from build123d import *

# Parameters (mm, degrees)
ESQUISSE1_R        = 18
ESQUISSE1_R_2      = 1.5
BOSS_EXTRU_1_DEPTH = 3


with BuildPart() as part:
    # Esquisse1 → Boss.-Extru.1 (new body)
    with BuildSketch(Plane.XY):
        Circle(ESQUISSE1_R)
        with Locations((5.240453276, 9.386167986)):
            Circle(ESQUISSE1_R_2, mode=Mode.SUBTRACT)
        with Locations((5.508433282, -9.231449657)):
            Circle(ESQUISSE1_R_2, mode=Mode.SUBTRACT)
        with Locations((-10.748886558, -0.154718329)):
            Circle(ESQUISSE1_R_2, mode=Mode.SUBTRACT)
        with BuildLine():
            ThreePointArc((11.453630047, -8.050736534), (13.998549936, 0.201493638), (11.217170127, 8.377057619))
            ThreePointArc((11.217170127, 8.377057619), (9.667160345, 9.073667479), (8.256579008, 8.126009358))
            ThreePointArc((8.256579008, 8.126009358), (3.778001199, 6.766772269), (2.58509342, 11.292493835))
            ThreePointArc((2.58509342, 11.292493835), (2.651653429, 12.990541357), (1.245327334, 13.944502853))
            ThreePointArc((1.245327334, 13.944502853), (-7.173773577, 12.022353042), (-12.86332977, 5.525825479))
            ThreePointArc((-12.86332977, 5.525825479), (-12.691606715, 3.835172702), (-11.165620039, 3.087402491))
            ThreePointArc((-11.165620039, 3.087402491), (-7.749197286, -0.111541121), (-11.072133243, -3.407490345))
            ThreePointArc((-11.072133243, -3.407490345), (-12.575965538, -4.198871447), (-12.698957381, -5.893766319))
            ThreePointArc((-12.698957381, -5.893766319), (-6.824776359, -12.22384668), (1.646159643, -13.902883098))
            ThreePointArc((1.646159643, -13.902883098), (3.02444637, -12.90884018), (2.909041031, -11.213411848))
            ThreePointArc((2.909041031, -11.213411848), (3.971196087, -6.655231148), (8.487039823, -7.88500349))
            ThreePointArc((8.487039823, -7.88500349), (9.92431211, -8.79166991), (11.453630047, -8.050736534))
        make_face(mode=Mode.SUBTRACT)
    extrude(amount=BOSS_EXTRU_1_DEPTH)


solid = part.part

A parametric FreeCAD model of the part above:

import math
import FreeCAD as App
import Part
import Sketcher
from FreeCAD import Vector
Q = App.Units.Quantity

doc = App.newDocument("Part")
body = doc.addObject("PartDesign::Body", "Body")

# Sketch on XY plane
sketch1 = body.newObject("Sketcher::SketchObject", "Sketch")
sketch1.AttachmentSupport = (doc.getObject("XY_Plane"), [""])
sketch1.MapMode = "FlatFace"
sketch1.addGeometry(Part.Circle(Vector(0, 0, 0), Vector(0, 0, 1), 18), False)
sketch1.addGeometry(Part.Circle(Vector(-10.7, -0.2, 0), Vector(0, 0, 1), 1.5), False)
sketch1.addGeometry(Part.Circle(Vector(5.5, -9.2, 0), Vector(0, 0, 1), 1.5), False)
sketch1.addGeometry(Part.ArcOfCircle(Part.Circle(Vector(0, 0, 0), Vector(0, 0, 1), 14), math.radians(-35), math.radians(37)), False)
sketch1.addGeometry(Part.ArcOfCircle(Part.Circle(Vector(10, -7, 0), Vector(0, 0, 1), 1.7), math.radians(-151), math.radians(-35)), False)
sketch1.addGeometry(Part.ArcOfCircle(Part.Circle(Vector(5.6, -9.4, 0), Vector(0, 0, 1), 3.2), math.radians(29), math.radians(213)), False)
sketch1.addGeometry(Part.ArcOfCircle(Part.Circle(Vector(1.4, -12.2, 0), Vector(0, 0, 1), 1.8), math.radians(-83), math.radians(33)), False)
sketch1.addGeometry(Part.ArcOfCircle(Part.Circle(Vector(0, 0, 0), Vector(0, 0, 1), 14), math.radians(-155), math.radians(-83)), False)
sketch1.addGeometry(Part.ArcOfCircle(Part.Circle(Vector(-11.1, -5.2, 0), Vector(0, 0, 1), 1.7), math.radians(89), math.radians(205)), False)
sketch1.addGeometry(Part.ArcOfCircle(Part.Circle(Vector(-11, -0.2, 0), Vector(0, 0, 1), 3.2), math.radians(-91), math.radians(93)), False)
sketch1.addGeometry(Part.ArcOfCircle(Part.Circle(Vector(-11.3, 4.8, 0), Vector(0, 0, 1), 1.8), math.radians(157), math.radians(273)), False)
sketch1.addGeometry(Part.ArcOfCircle(Part.Circle(Vector(0, 0, 0), Vector(0, 0, 1), 14), math.radians(85), math.radians(157)), False)
sketch1.addGeometry(Part.ArcOfCircle(Part.Circle(Vector(1.1, 12.2, 0), Vector(0, 0, 1), 1.7), math.radians(-31), math.radians(85)), False)
sketch1.addGeometry(Part.ArcOfCircle(Part.Circle(Vector(5.4, 9.6, 0), Vector(0, 0, 1), 3.2), math.radians(149), math.radians(333)), False)
sketch1.addGeometry(Part.ArcOfCircle(Part.Circle(Vector(9.8, 7.3, 0), Vector(0, 0, 1), 1.8), math.radians(37), math.radians(153)), False)
sketch1.addGeometry(Part.Circle(Vector(5.2, 9.4, 0), Vector(0, 0, 1), 1.5), False)
sketch1.addConstraint(Sketcher.Constraint("Tangent", 3, 1, 4, 2))
sketch1.addConstraint(Sketcher.Constraint("Tangent", 4, 1, 5, 1))
sketch1.addConstraint(Sketcher.Constraint("Tangent", 5, 2, 6, 2))
sketch1.addConstraint(Sketcher.Constraint("Tangent", 6, 1, 7, 2))
sketch1.addConstraint(Sketcher.Constraint("Tangent", 7, 1, 8, 2))
sketch1.addConstraint(Sketcher.Constraint("Tangent", 8, 1, 9, 1))
sketch1.addConstraint(Sketcher.Constraint("Tangent", 9, 2, 10, 2))
sketch1.addConstraint(Sketcher.Constraint("Tangent", 10, 1, 11, 2))
sketch1.addConstraint(Sketcher.Constraint("Tangent", 11, 1, 12, 2))
sketch1.addConstraint(Sketcher.Constraint("Tangent", 12, 1, 13, 1))
sketch1.addConstraint(Sketcher.Constraint("Tangent", 13, 2, 14, 2))
sketch1.addConstraint(Sketcher.Constraint("Tangent", 14, 1, 3, 2))
sketch1.addConstraint(Sketcher.Constraint("Coincident", 0, 3, -1, 1))
sketch1.addConstraint(Sketcher.Constraint("Coincident", 3, 3, -1, 1))
sketch1.addConstraint(Sketcher.Constraint("Coincident", 7, 3, -1, 1))
sketch1.addConstraint(Sketcher.Constraint("Coincident", 11, 3, -1, 1))
sketch1.addConstraint(Sketcher.Constraint("Equal", 1, 2))
sketch1.addConstraint(Sketcher.Constraint("Equal", 4, 6))
sketch1.addConstraint(Sketcher.Constraint("Equal", 3, 7))
sketch1.addConstraint(Sketcher.Constraint("Equal", 6, 8))
sketch1.addConstraint(Sketcher.Constraint("Equal", 5, 9))
sketch1.addConstraint(Sketcher.Constraint("Equal", 8, 10))
sketch1.addConstraint(Sketcher.Constraint("Equal", 7, 11))
sketch1.addConstraint(Sketcher.Constraint("Equal", 10, 12))
sketch1.addConstraint(Sketcher.Constraint("Equal", 9, 13))
sketch1.addConstraint(Sketcher.Constraint("Equal", 12, 14))
sketch1.addConstraint(Sketcher.Constraint("Equal", 2, 15))
sketch1.addConstraint(Sketcher.Constraint("Diameter", 0, Q("36 mm")))
sketch1.addConstraint(Sketcher.Constraint("Diameter", 1, Q("3 mm")))
sketch1.addConstraint(Sketcher.Constraint("Radius", 3, Q("14 mm")))
sketch1.addConstraint(Sketcher.Constraint("Radius", 4, Q("1.75 mm")))
sketch1.addConstraint(Sketcher.Constraint("Radius", 5, Q("3.25 mm")))
sketch1.addConstraint(Sketcher.Constraint("DistanceX", 5, 2, 4, 1, Q("5.577999 mm")))
sketch1.addConstraint(Sketcher.Constraint("DistanceX", 8, 3, 1, 3, Q("0.362701 mm")))
sketch1.addConstraint(Sketcher.Constraint("DistanceY", 9, 3, 1, 3, Q("0.003598 mm")))
sketch1.addConstraint(Sketcher.Constraint("DistanceX", 13, 3, 14, 3, Q("4.4527 mm")))
sketch1.addConstraint(Sketcher.Constraint("DistanceY", 1, 3, -1, 1, Q("0.154718 mm")))
sketch1.addConstraint(Sketcher.Constraint("DistanceY", 2, 3, -1, 1, Q("9.23145 mm")))
sketch1.addConstraint(Sketcher.Constraint("DistanceX", -1, 1, 6, 3, Q("1.44039 mm")))
sketch1.addConstraint(Sketcher.Constraint("DistanceX", 9, 3, -1, 1, Q("10.998861 mm")))
sketch1.addConstraint(Sketcher.Constraint("DistanceX", -1, 1, 12, 3, Q("1.089661 mm")))
sketch1.addConstraint(Sketcher.Constraint("DistanceX", 1, 3, 2, 3, Q("16.25732 mm")))
sketch1.addConstraint(Sketcher.Constraint("DistanceX", 15, 3, 13, 3, Q("0.121871 mm")))
sketch1.addConstraint(Sketcher.Constraint("DistanceY", 13, 2, 15, 3, Q("1.260159 mm")))
pad1 = body.newObject("PartDesign::Pad", "Pad")
pad1.Profile = sketch1
pad1.Length = 3

doc.recompute()
